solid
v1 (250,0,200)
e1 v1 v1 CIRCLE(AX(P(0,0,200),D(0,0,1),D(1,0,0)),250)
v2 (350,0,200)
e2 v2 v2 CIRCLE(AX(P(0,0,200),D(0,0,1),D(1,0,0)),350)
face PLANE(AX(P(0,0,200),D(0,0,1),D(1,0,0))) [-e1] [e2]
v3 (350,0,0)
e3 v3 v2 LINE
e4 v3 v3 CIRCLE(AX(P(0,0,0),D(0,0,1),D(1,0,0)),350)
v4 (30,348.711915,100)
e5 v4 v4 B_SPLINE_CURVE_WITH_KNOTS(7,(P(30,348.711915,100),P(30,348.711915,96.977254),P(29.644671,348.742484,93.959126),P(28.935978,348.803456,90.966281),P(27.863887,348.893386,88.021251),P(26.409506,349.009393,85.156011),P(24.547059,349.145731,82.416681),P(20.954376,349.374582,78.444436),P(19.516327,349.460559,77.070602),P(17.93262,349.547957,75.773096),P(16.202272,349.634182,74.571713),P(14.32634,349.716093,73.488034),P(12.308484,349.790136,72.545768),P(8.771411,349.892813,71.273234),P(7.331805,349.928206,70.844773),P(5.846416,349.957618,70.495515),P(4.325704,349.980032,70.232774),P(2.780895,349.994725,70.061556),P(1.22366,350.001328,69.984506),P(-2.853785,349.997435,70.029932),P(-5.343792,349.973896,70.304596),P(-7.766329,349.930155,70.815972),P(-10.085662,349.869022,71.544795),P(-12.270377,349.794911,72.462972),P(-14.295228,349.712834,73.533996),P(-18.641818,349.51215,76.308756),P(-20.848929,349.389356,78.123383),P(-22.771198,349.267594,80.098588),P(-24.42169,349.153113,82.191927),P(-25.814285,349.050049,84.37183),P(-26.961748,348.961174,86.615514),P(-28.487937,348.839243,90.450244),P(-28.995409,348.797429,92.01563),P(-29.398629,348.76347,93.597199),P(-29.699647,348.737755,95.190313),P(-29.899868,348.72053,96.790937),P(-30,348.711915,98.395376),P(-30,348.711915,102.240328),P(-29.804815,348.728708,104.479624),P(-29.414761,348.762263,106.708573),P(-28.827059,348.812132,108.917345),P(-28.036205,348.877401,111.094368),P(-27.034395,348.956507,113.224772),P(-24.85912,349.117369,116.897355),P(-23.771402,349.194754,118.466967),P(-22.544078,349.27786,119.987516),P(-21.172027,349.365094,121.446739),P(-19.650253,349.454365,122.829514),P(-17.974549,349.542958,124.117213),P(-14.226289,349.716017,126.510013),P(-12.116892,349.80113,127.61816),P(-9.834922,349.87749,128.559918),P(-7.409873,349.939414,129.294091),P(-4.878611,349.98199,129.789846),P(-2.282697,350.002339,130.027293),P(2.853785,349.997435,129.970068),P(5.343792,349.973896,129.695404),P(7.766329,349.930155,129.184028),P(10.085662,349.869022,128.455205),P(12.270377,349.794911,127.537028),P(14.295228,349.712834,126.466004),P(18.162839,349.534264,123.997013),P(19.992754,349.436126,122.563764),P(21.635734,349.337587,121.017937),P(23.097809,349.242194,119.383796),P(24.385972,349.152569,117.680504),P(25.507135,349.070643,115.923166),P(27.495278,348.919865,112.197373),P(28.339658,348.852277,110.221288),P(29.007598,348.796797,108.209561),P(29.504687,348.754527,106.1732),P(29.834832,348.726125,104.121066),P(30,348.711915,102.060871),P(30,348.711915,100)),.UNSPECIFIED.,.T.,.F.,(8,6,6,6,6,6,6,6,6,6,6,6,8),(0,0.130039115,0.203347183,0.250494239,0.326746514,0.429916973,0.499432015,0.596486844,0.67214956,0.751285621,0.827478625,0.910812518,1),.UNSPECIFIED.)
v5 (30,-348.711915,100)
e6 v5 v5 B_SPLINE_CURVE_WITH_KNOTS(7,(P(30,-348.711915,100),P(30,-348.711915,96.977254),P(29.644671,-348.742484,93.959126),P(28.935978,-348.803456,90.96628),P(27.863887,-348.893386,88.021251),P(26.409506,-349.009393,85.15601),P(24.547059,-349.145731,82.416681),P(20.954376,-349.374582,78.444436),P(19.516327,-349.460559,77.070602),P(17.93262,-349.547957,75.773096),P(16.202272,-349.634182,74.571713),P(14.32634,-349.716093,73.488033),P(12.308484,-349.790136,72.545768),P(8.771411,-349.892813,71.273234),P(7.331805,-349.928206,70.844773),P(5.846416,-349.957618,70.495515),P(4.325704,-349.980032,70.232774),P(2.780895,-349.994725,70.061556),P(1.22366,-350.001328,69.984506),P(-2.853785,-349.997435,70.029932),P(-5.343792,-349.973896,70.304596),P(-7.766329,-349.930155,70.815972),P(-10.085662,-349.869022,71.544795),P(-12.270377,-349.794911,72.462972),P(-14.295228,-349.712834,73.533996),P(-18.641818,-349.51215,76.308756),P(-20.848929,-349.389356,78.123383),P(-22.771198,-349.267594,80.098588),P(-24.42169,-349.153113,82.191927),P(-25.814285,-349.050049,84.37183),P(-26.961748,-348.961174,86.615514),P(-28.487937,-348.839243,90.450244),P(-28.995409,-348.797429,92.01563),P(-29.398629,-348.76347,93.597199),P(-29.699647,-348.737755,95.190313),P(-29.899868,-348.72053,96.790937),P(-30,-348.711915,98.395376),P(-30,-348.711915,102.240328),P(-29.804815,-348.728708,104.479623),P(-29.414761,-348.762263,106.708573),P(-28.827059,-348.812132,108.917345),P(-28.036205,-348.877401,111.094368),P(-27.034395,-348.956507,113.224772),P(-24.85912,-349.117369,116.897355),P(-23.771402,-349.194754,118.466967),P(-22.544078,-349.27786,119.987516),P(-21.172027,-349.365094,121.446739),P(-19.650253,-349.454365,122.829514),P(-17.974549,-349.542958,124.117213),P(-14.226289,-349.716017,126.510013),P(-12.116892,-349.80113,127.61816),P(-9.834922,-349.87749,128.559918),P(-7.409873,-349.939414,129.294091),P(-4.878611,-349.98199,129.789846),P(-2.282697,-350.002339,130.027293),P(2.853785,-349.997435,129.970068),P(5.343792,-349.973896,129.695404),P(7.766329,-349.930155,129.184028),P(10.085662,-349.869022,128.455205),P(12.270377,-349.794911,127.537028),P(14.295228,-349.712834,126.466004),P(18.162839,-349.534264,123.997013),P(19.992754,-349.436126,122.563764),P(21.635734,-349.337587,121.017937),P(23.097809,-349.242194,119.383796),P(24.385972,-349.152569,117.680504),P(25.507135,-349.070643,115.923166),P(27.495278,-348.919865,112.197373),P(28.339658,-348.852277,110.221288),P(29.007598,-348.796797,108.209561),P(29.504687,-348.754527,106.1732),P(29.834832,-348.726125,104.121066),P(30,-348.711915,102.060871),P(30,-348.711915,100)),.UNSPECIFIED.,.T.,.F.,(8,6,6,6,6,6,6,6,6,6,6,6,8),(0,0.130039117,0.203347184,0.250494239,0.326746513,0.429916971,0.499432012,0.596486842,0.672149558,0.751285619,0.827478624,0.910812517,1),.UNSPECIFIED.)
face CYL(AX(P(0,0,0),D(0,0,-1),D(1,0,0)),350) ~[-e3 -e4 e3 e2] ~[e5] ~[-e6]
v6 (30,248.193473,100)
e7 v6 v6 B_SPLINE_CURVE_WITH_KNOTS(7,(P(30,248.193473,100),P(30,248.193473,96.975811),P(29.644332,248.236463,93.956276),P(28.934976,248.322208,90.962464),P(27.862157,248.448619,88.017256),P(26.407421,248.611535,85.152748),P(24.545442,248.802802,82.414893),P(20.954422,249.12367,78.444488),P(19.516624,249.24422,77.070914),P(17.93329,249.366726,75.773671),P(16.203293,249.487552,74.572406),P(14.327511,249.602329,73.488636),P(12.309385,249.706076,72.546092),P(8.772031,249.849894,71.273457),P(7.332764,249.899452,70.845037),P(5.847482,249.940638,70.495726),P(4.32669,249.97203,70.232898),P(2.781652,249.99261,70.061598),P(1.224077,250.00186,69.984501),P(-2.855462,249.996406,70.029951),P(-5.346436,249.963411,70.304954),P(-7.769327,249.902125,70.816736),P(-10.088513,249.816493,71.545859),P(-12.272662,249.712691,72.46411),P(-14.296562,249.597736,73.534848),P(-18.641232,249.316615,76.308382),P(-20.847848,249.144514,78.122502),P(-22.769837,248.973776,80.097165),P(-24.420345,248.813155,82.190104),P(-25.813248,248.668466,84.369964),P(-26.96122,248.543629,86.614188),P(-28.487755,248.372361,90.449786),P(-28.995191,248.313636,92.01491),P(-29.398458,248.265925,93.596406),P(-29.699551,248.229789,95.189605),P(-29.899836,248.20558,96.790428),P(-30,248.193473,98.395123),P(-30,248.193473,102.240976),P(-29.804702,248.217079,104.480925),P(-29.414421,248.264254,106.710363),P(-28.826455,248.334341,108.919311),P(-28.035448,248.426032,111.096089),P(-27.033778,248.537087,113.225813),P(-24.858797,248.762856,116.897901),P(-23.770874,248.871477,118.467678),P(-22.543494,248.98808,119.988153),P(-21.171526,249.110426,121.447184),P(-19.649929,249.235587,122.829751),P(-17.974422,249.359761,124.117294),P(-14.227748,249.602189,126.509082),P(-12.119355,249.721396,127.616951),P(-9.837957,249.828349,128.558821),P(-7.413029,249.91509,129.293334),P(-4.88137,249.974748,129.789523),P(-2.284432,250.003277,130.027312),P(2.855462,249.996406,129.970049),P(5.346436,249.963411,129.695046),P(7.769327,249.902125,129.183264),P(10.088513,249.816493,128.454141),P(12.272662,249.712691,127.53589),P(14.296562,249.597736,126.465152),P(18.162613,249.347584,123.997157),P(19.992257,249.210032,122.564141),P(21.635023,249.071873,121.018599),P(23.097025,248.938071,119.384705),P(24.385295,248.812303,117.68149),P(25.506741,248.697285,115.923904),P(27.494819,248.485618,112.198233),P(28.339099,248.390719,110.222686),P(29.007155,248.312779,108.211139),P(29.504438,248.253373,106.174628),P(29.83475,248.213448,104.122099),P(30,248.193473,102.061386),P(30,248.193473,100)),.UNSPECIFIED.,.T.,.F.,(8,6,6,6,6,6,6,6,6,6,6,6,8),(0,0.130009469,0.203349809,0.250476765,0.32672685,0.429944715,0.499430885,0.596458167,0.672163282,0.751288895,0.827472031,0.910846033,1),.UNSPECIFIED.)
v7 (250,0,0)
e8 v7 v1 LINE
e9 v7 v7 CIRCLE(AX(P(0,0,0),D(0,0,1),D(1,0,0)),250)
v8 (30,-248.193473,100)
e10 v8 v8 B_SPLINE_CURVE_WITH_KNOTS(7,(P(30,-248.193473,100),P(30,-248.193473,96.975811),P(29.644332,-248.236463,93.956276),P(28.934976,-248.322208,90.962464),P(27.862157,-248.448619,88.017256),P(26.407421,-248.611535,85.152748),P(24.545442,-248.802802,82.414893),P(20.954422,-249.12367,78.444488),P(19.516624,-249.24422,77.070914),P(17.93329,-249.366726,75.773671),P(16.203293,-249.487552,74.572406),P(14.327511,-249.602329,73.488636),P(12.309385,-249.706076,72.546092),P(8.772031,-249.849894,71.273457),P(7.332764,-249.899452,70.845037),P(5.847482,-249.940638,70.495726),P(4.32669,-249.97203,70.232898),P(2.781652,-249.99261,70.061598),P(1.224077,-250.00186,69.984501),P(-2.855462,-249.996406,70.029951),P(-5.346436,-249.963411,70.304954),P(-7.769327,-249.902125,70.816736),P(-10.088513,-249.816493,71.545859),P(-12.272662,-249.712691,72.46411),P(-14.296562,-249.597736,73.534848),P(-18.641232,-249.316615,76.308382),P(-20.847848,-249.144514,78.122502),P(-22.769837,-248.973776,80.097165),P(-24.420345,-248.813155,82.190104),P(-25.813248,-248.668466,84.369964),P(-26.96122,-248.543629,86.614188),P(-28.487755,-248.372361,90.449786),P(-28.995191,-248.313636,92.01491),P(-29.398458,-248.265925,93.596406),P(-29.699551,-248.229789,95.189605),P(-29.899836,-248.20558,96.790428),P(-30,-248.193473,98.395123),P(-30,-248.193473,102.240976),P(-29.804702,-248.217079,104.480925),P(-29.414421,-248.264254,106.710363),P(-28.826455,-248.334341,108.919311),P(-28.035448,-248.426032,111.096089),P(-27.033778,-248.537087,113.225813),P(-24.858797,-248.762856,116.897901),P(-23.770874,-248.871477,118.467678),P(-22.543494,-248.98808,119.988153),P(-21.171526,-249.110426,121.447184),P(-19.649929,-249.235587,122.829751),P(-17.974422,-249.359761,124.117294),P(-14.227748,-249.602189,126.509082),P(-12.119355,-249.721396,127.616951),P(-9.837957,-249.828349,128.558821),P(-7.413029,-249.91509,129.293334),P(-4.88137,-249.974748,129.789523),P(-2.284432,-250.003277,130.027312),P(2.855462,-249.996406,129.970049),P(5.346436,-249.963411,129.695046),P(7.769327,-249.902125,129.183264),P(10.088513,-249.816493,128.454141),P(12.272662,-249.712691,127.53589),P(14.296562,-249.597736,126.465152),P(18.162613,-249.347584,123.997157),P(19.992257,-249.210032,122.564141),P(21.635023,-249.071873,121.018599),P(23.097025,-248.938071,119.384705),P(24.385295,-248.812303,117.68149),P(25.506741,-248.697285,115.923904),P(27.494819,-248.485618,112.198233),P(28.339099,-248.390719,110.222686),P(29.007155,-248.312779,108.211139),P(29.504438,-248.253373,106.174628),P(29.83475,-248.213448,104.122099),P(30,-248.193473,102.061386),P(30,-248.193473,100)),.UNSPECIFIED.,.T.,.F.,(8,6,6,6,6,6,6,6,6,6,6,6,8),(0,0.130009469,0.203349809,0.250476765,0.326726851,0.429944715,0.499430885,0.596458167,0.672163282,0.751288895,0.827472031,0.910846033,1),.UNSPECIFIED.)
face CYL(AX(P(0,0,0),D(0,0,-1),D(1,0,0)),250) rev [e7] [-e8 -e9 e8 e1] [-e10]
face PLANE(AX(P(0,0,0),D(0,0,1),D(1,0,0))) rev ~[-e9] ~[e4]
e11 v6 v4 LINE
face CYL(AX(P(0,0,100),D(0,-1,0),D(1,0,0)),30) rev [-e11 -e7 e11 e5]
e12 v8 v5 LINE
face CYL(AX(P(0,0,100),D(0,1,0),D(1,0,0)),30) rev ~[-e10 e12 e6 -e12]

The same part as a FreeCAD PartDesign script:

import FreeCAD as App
import Part
import Sketcher
Q = App.Units.Quantity

doc = App.newDocument("Part")
body = doc.addObject("PartDesign::Body", "Body")

# Sketch on XY plane
sketch1 = body.newObject("Sketcher::SketchObject", "Sketch")
sketch1.AttachmentSupport = (doc.getObject("XY_Plane"), [""])
sketch1.MapMode = "FlatFace"
sketch1.addGeometry([
    Part.Circle(App.Vector(0, 0, 0), App.Vector(0, 0, 1), 350),
    Part.Circle(App.Vector(0, 0, 0), App.Vector(0, 0, 1), 250),
], False)
sketch1.addConstraint([
    Sketcher.Constraint("Coincident", 0, 3, -1, 1),
    Sketcher.Constraint("Coincident", 1, 3, -1, 1),
    Sketcher.Constraint("Diameter", 0, Q("700 mm")),
    Sketcher.Constraint("Diameter", 1, Q("500 mm")),
])
pad1 = body.newObject("PartDesign::Pad", "Pad")
pad1.Profile = sketch1
pad1.Length = 200

# Sketch on XZ plane
sketch2 = body.newObject("Sketcher::SketchObject", "Sketch001")
sketch2.AttachmentSupport = (doc.getObject("XZ_Plane"), [""])
sketch2.MapMode = "FlatFace"
sketch2.addGeometry(Part.Circle(App.Vector(0, 100, 0), App.Vector(0, 0, 1), 30), False)
sketch2.addConstraint([
    Sketcher.Constraint("PointOnObject", 0, 3, -2),
    Sketcher.Constraint("Diameter", 0, Q("60 mm")),
    Sketcher.Constraint("DistanceY", -1, 1, 0, 3, Q("100 mm")),
])
pocket1 = body.newObject("PartDesign::Pocket", "Pocket")
pocket1.Profile = sketch2
pocket1.Type = "ThroughAll"
pocket1.Midplane = True

doc.recompute()
